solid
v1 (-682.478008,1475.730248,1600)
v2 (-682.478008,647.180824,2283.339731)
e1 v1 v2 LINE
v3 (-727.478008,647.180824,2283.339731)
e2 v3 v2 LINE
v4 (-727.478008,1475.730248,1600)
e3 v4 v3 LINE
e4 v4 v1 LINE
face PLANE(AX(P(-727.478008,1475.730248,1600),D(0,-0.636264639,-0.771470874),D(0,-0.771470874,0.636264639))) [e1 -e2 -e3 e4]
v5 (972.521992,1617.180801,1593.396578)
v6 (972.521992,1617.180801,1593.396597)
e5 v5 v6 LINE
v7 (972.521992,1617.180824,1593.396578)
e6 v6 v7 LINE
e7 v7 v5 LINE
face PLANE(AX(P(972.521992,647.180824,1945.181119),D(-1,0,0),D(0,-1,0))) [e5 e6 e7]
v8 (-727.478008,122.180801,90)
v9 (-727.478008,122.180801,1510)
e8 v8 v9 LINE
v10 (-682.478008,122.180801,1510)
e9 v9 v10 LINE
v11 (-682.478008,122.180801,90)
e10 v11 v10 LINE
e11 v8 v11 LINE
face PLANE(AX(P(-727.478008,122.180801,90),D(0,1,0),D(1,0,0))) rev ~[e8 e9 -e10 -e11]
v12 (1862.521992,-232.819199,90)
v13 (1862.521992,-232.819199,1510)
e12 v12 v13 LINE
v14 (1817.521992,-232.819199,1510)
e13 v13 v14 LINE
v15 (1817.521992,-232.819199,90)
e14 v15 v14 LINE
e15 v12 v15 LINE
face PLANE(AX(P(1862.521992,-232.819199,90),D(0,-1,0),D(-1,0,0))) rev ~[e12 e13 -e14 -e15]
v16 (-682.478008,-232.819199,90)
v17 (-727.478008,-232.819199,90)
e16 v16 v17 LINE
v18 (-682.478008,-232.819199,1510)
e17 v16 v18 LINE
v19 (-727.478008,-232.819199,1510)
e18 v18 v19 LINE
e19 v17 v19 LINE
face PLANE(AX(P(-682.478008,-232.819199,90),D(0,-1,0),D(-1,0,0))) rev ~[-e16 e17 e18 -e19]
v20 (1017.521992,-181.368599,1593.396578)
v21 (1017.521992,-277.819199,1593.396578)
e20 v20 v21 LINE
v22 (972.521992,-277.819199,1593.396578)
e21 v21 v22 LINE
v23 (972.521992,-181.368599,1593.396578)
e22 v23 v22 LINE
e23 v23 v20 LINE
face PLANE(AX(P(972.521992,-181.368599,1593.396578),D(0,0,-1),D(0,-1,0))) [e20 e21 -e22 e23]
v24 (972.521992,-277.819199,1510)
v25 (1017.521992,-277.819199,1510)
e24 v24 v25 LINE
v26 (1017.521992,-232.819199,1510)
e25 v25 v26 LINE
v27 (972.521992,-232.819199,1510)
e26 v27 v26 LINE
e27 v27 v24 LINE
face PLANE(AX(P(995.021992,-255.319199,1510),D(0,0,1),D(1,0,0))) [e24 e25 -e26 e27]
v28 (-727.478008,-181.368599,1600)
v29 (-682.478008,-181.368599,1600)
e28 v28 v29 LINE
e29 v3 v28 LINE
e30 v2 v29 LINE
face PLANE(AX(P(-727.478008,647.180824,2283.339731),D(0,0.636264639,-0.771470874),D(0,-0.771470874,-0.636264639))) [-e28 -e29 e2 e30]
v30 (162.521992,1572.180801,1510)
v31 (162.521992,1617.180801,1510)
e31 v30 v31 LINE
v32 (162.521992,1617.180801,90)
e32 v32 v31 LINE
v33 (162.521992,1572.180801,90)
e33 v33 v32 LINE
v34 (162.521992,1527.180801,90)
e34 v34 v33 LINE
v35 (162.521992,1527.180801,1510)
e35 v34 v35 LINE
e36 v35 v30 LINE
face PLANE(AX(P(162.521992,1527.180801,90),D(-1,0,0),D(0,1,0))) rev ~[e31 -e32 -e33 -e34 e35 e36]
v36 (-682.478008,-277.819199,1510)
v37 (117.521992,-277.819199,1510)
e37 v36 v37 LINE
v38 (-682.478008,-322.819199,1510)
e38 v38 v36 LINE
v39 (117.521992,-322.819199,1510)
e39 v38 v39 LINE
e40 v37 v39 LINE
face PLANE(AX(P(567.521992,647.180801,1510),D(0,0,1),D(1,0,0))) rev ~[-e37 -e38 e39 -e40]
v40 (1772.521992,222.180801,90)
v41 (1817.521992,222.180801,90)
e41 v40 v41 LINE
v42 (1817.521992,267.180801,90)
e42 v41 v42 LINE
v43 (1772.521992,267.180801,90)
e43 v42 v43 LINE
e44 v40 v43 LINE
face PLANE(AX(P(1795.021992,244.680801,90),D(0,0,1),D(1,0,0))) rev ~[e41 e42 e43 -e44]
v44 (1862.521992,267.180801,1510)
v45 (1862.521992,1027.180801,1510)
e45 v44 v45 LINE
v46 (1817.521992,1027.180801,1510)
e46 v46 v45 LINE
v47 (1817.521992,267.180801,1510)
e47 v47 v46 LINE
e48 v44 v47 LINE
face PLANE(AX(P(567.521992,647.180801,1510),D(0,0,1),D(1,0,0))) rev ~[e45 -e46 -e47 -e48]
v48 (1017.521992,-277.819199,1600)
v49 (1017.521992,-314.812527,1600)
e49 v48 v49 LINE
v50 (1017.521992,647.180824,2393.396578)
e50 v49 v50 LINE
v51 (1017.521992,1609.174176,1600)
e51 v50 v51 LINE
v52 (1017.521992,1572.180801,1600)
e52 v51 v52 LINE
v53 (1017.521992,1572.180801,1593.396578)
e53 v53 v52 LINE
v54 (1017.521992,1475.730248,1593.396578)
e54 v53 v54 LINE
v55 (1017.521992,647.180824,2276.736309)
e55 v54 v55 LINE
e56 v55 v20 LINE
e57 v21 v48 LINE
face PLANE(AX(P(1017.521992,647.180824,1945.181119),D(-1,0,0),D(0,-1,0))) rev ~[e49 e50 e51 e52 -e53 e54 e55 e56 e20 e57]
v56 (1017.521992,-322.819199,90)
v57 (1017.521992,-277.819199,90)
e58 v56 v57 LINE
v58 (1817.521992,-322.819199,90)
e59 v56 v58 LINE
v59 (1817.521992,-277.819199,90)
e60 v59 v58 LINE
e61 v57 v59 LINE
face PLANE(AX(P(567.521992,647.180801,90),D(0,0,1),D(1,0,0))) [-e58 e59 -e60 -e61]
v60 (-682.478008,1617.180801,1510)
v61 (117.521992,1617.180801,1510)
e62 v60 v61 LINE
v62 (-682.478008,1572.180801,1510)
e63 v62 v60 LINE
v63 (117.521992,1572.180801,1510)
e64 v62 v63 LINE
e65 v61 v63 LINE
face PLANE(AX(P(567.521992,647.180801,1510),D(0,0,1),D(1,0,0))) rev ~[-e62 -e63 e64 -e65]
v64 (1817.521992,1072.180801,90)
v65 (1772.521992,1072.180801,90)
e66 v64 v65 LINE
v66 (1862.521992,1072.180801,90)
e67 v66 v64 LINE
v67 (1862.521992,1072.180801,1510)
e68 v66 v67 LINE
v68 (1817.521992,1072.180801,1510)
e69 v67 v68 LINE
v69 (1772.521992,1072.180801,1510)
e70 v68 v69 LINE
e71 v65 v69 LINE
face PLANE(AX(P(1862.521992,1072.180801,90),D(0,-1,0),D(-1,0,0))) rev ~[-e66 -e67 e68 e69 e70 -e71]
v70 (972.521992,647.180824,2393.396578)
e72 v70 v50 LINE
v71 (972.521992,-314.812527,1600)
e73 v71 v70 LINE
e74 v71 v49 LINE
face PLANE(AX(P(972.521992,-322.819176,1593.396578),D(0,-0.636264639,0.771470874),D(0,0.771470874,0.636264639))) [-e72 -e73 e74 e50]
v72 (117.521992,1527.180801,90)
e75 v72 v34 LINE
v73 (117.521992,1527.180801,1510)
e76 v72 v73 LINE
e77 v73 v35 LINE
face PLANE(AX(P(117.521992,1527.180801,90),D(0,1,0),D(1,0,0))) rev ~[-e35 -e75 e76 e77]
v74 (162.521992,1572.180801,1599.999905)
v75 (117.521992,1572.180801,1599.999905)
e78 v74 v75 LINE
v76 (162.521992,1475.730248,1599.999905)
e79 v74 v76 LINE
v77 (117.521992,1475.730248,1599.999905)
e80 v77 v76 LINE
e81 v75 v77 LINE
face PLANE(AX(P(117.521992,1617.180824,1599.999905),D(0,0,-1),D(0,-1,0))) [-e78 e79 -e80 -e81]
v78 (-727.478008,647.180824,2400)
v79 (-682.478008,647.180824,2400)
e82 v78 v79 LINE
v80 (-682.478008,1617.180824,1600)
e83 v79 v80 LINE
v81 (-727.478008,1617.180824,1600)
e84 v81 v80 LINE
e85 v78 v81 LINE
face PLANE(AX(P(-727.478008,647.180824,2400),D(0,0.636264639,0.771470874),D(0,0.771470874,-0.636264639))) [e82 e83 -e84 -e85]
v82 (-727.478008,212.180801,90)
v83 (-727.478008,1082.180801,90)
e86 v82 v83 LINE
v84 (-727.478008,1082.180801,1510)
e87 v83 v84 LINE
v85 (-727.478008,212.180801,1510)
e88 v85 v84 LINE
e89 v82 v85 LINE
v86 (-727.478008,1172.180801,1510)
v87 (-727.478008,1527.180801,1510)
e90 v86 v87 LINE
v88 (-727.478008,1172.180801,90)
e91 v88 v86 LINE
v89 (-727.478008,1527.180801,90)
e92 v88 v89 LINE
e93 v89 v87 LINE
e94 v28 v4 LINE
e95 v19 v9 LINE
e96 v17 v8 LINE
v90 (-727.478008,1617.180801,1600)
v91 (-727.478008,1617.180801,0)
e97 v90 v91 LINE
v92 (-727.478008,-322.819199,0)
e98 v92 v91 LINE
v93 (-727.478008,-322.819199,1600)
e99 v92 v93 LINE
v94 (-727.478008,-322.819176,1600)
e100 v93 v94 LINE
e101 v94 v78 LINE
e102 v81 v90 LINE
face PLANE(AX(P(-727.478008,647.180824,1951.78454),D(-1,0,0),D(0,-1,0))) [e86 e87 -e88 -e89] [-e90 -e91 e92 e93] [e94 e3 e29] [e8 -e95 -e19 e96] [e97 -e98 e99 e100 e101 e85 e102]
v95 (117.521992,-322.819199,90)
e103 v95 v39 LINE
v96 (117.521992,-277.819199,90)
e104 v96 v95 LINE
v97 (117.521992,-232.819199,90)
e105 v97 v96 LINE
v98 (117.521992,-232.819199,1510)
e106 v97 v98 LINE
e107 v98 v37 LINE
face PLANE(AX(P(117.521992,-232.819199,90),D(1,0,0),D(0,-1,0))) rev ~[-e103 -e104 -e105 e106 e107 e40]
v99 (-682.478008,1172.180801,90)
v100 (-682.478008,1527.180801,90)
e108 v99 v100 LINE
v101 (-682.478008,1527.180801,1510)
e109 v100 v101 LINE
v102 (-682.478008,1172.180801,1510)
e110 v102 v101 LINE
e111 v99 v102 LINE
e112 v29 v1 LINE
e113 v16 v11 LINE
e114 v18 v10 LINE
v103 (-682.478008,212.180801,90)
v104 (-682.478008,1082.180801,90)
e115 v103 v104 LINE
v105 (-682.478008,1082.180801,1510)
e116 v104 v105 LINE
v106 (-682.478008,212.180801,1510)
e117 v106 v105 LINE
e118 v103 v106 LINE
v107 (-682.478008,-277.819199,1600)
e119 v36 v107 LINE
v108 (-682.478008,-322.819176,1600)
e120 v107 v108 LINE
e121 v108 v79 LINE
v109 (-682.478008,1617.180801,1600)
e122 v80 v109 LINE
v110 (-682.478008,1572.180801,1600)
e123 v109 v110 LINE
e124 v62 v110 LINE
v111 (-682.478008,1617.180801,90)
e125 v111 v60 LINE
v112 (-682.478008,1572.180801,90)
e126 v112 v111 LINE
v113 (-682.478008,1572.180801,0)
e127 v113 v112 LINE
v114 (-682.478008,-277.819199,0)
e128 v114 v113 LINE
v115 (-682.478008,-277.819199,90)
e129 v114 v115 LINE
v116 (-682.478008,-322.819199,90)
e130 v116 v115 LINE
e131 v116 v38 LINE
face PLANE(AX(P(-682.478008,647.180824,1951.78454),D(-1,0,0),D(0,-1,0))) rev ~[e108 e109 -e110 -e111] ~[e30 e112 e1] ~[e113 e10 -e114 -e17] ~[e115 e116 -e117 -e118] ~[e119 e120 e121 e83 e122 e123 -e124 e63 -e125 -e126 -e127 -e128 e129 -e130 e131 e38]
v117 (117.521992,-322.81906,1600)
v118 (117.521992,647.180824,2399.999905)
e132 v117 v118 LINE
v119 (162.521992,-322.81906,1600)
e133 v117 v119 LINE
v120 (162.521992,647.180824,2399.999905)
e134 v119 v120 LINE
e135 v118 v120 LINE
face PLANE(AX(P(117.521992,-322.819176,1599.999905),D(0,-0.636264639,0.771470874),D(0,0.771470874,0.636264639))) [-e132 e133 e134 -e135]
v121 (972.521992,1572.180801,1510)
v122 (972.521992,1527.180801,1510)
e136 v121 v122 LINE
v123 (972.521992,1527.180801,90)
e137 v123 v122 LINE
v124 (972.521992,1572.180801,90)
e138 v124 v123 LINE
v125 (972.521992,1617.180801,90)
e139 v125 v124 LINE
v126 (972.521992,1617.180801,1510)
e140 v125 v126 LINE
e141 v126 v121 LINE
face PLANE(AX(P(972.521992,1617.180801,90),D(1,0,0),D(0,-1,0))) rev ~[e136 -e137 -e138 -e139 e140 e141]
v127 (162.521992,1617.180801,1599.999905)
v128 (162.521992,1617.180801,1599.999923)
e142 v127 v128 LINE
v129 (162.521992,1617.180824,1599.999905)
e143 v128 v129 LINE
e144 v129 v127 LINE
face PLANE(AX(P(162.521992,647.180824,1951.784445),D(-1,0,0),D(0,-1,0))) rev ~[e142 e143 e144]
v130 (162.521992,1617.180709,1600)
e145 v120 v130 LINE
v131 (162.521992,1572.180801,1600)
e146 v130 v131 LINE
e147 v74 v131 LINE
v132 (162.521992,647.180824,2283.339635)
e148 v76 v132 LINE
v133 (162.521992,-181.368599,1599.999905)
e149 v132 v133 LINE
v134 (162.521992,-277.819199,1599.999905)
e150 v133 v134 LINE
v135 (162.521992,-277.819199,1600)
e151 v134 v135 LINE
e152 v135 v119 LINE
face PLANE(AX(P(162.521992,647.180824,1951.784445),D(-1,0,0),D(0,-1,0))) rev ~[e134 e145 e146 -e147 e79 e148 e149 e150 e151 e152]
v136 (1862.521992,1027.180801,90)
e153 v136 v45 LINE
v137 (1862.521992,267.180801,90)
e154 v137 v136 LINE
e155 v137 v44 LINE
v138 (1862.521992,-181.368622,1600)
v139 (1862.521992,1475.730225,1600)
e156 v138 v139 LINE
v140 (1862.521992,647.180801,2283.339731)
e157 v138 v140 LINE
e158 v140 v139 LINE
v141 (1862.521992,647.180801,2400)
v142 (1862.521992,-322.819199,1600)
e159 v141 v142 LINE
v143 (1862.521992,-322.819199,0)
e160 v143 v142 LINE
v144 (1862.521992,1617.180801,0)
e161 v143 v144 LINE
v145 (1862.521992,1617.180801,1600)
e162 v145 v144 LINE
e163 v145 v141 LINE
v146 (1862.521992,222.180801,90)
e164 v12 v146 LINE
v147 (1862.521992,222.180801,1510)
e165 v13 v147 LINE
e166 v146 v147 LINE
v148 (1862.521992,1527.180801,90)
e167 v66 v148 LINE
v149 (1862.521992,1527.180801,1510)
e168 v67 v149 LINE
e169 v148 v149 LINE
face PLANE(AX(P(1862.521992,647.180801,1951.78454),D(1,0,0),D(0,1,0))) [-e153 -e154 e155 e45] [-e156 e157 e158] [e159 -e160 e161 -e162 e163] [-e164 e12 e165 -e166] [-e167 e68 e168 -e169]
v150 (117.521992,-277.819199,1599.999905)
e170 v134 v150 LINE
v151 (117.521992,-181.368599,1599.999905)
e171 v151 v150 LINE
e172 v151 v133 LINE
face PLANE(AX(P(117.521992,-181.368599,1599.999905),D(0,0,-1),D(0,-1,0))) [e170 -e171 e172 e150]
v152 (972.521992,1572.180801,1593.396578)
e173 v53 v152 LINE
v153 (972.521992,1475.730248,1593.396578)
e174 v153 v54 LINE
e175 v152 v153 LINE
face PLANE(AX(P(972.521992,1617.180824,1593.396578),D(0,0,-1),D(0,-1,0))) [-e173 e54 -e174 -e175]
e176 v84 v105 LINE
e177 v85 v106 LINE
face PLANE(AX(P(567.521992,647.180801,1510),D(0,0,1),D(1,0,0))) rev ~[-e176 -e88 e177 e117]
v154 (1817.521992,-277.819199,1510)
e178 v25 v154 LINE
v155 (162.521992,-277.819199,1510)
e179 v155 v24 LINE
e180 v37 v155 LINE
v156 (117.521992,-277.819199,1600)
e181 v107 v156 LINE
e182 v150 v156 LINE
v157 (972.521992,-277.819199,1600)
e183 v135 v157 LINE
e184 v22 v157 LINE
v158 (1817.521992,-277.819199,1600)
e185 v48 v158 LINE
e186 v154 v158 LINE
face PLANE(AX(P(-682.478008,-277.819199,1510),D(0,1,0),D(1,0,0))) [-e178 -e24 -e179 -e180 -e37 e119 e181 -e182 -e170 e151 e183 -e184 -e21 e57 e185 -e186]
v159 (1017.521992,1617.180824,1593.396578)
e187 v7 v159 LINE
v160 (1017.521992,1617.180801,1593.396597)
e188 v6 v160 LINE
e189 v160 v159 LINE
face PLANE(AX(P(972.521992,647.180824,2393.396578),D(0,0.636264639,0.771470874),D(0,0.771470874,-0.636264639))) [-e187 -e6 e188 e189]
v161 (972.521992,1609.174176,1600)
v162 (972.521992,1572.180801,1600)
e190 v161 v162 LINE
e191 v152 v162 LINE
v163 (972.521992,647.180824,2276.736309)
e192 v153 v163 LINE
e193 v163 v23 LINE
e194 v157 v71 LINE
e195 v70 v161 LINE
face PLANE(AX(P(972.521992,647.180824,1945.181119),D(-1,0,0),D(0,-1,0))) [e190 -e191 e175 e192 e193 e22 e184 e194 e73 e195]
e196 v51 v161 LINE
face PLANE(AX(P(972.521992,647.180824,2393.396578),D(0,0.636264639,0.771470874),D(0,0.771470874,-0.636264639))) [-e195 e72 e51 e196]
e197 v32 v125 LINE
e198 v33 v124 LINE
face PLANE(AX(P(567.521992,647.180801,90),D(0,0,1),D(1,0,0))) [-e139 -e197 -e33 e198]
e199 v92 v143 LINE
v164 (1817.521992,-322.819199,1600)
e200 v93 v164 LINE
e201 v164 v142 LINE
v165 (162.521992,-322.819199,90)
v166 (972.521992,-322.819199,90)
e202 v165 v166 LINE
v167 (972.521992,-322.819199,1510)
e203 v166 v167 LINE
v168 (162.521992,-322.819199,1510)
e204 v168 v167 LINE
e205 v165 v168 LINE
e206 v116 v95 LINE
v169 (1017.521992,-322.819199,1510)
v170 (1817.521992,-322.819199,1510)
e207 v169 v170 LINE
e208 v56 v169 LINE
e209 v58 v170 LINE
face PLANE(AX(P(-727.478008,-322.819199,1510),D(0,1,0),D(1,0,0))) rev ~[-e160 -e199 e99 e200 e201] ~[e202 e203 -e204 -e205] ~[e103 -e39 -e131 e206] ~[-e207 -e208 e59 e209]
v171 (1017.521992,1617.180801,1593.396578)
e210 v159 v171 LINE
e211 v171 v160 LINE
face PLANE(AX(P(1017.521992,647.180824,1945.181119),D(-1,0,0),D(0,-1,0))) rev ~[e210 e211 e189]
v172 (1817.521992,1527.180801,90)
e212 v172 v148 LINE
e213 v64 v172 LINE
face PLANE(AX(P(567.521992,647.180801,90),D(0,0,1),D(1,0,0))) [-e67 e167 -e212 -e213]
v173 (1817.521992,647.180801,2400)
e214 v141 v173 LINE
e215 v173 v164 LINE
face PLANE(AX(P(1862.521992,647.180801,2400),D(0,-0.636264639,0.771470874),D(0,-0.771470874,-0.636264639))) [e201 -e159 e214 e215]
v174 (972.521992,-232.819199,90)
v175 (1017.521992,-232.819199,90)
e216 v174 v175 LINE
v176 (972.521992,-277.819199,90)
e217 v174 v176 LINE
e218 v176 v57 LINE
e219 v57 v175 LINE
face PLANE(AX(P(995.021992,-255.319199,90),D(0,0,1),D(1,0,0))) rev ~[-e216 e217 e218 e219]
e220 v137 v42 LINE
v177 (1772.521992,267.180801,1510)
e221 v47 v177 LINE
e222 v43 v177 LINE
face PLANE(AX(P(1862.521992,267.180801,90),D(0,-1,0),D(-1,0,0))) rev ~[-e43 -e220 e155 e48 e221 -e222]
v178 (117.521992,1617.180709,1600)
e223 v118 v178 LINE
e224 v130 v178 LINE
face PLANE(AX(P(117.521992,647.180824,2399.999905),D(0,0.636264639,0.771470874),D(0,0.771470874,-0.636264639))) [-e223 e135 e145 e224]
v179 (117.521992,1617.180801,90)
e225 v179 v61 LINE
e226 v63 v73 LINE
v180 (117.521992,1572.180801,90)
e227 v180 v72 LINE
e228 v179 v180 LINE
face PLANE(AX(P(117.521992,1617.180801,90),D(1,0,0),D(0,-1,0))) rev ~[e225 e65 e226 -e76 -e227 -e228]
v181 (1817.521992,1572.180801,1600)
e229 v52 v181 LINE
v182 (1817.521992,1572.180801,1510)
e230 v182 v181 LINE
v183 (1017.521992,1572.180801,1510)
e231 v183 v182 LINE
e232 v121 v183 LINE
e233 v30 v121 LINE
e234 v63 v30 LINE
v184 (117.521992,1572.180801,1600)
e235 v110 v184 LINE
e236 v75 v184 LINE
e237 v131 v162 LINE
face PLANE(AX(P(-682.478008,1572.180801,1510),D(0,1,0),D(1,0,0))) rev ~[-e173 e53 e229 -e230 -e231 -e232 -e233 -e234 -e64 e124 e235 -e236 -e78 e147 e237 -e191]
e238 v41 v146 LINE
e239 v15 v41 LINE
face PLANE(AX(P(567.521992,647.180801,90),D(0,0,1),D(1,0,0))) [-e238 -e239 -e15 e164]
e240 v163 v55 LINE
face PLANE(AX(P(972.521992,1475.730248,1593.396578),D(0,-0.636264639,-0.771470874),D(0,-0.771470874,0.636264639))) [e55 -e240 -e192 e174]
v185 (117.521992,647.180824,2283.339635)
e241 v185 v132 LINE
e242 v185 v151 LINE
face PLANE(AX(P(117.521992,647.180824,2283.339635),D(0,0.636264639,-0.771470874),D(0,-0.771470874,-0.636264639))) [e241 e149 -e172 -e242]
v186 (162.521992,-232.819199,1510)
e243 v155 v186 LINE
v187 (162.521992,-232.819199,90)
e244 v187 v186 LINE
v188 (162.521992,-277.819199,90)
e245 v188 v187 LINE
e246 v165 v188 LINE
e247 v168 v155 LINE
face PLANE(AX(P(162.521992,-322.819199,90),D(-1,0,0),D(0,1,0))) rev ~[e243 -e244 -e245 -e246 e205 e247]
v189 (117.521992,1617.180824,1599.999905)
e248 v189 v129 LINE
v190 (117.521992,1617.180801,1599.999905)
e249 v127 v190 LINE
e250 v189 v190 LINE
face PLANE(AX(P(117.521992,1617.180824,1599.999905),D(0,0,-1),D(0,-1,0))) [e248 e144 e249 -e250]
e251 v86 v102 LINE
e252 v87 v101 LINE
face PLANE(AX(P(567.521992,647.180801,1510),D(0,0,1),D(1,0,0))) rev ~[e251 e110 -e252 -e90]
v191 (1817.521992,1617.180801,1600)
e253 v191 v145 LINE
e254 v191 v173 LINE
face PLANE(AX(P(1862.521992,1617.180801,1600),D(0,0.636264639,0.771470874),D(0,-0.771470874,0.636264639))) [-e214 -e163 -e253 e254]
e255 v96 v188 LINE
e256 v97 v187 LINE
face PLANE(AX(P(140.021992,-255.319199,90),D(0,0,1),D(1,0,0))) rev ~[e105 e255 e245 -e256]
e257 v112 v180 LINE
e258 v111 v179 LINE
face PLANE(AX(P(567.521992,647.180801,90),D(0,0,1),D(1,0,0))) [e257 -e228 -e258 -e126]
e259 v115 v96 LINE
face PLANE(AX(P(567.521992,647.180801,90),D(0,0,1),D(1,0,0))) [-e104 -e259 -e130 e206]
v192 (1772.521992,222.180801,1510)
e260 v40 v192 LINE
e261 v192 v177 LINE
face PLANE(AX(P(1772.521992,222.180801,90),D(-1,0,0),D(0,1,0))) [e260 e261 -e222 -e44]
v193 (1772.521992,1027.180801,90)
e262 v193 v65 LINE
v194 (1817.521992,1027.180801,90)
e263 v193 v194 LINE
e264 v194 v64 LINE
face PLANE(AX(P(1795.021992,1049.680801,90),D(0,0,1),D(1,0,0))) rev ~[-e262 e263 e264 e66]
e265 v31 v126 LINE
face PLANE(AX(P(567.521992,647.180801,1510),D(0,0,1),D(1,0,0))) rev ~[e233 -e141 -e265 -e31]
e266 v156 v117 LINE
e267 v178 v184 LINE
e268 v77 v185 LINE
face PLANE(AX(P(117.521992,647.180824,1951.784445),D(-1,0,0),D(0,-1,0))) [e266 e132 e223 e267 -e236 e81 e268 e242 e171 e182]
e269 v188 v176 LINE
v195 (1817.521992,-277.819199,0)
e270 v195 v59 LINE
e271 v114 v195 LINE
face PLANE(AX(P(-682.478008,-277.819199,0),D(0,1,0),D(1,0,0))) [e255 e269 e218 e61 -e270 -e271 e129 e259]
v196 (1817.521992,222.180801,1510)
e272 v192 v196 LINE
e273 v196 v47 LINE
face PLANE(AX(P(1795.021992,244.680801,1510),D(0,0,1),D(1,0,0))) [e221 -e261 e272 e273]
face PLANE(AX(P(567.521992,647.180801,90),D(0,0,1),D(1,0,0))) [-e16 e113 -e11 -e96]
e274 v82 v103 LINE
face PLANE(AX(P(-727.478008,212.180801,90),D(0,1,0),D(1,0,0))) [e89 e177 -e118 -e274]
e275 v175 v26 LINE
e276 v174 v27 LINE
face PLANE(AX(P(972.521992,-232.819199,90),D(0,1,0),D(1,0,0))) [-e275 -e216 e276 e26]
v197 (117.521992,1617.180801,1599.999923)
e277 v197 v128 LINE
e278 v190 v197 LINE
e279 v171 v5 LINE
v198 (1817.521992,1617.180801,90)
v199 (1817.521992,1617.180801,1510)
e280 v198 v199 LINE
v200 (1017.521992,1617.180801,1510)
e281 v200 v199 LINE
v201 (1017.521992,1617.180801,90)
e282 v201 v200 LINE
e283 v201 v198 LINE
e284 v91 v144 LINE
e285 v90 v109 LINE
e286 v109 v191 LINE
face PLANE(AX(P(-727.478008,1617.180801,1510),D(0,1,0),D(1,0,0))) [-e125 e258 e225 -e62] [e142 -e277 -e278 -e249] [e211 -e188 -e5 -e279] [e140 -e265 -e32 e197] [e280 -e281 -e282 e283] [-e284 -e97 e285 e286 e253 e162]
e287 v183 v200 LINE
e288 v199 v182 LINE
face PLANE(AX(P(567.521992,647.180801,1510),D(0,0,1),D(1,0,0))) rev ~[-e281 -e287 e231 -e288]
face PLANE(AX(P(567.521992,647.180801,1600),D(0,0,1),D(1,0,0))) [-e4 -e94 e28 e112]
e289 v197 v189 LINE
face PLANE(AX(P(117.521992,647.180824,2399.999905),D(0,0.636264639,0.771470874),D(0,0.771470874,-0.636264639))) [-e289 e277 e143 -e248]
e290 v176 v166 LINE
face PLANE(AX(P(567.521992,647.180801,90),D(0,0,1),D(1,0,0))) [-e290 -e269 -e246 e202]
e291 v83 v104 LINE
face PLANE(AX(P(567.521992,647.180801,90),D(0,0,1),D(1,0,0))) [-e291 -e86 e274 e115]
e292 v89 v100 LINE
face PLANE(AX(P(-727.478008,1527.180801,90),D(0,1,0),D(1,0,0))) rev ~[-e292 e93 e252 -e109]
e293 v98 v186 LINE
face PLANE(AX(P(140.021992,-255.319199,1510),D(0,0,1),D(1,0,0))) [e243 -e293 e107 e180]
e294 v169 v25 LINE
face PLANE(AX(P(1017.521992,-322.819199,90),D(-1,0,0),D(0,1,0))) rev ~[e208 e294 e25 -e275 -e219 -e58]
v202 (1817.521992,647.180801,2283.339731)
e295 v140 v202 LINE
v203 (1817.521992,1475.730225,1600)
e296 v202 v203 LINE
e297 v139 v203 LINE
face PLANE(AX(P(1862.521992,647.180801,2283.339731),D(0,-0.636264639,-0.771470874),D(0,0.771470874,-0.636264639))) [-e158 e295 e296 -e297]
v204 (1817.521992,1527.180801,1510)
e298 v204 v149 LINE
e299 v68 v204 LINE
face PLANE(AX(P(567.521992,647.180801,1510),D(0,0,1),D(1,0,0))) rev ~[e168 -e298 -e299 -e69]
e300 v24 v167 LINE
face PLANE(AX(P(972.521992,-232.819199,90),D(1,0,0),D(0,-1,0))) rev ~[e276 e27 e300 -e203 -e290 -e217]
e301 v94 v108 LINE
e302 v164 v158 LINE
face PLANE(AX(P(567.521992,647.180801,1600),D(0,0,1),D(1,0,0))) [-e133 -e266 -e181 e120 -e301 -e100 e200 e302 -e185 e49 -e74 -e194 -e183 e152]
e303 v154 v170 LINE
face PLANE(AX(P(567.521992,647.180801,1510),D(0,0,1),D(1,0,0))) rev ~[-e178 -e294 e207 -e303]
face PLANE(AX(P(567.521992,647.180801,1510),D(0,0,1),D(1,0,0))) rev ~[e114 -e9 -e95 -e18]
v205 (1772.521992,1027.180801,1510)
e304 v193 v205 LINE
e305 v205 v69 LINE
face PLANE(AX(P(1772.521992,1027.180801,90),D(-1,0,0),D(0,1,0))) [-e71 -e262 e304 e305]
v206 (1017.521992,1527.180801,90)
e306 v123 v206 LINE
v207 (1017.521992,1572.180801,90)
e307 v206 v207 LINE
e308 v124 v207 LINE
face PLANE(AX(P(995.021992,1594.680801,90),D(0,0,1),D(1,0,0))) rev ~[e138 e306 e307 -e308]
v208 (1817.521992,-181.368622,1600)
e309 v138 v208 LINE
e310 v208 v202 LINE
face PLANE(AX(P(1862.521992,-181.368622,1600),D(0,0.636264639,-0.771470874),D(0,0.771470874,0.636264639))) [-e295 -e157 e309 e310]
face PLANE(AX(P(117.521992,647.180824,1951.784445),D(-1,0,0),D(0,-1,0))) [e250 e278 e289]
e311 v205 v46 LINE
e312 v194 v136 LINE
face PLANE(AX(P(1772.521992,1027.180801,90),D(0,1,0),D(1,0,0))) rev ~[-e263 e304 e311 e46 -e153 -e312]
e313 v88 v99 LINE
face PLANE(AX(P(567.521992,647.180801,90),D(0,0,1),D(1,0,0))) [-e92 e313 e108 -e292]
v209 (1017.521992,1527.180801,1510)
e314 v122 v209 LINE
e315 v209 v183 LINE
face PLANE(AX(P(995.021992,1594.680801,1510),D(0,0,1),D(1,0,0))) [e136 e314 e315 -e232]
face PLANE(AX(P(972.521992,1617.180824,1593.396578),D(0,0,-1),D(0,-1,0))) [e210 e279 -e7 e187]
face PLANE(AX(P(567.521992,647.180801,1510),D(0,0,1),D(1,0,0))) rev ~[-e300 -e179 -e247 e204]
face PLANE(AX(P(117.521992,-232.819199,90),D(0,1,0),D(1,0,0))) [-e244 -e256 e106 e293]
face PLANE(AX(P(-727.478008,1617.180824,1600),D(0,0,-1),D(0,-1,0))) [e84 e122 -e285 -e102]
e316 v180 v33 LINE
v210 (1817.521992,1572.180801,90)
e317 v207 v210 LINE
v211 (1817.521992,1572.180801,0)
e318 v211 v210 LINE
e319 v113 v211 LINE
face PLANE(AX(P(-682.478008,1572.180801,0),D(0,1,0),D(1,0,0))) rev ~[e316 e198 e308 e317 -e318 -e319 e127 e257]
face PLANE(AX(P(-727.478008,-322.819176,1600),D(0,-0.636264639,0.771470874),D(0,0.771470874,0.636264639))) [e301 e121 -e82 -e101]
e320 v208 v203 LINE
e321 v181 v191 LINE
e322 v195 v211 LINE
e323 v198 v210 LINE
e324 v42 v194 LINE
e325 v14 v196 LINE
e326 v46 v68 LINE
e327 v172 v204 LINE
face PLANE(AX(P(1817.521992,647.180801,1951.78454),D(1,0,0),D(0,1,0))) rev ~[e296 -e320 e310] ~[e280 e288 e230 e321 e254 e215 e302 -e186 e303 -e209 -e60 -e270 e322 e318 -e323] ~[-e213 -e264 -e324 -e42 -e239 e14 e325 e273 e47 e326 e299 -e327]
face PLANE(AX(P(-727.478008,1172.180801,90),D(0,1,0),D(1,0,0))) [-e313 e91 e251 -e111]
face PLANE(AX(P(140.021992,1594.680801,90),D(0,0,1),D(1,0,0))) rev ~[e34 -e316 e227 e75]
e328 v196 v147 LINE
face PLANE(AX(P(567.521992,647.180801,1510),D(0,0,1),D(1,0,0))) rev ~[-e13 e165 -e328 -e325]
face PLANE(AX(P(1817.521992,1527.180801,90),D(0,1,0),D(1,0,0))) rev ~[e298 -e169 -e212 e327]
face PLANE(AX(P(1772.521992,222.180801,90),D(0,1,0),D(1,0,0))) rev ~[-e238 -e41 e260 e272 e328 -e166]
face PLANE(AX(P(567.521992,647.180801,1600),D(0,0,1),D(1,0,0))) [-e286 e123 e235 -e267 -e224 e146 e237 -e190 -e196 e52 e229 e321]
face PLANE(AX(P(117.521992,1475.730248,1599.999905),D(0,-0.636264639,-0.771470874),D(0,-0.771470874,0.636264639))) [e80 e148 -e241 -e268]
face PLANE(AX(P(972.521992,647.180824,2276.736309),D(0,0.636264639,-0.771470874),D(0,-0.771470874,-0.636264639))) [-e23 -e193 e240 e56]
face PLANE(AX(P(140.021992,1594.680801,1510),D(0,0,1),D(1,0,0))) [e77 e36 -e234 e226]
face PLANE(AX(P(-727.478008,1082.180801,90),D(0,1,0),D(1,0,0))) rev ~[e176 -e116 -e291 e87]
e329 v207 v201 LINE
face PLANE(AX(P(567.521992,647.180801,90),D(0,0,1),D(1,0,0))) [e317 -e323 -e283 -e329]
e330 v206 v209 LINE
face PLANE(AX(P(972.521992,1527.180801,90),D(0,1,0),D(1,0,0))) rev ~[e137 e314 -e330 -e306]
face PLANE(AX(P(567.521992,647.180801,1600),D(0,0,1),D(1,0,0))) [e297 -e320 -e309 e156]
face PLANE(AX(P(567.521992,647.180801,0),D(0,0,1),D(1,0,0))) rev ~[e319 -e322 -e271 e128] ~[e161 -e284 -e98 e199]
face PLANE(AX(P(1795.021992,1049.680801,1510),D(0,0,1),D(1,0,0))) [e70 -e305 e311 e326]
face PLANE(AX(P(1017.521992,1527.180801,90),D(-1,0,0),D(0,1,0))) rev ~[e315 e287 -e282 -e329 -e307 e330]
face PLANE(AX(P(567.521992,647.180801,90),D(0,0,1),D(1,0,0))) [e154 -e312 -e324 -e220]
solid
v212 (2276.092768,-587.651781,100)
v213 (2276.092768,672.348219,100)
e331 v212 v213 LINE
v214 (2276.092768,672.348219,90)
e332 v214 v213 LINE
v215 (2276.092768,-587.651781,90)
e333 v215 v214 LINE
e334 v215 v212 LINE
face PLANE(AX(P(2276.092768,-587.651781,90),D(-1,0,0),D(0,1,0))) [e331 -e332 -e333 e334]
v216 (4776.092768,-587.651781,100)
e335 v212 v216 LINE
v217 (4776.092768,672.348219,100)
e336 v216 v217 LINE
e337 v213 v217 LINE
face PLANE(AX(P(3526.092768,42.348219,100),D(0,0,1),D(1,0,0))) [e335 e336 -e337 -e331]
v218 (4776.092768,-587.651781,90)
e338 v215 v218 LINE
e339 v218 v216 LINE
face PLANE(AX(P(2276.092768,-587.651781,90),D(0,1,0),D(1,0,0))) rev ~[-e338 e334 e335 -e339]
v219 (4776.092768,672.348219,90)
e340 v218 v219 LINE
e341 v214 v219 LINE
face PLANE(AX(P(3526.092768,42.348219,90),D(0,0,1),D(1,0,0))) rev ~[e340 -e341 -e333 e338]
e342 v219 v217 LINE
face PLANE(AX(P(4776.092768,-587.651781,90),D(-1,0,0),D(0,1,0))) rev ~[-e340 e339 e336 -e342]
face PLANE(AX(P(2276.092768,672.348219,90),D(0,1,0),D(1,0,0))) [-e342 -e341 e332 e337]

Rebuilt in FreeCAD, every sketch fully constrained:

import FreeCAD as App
import Part
import Sketcher
from FreeCAD import Vector

doc = App.newDocument("Part")
body = doc.addObject("PartDesign::Body", "Body")

# Sketch on XY plane
sketch1 = body.newObject("Sketcher::SketchObject", "Sketch")
sketch1.AttachmentSupport = (doc.getObject("XY_Plane"), [""])
sketch1.MapMode = "FlatFace"
sketch1.addGeometry([
    Part.LineSegment(Vector(-727, 1617, 0), Vector(-727, -323, 0)),  # 0
    Part.LineSegment(Vector(-727, -323, 0), Vector(1863, -323, 0)),  # 1
    Part.LineSegment(Vector(1863, -323, 0), Vector(1863, 1617, 0)),  # 2
    Part.LineSegment(Vector(1863, 1617, 0), Vector(-727, 1617, 0)),  # 3
    Part.LineSegment(Vector(1818, -278, 0), Vector(-682, -278, 0)),  # 4
    Part.LineSegment(Vector(-682, -278, 0), Vector(-682, 1572, 0)),  # 5
    Part.LineSegment(Vector(-682, 1572, 0), Vector(1818, 1572, 0)),  # 6
    Part.LineSegment(Vector(1818, 1572, 0), Vector(1818, -278, 0)),  # 7
], False)
sketch1.addConstraint([
    Sketcher.Constraint("Coincident", 0, 2, 1, 1),
    Sketcher.Constraint("Coincident", 1, 2, 2, 1),
    Sketcher.Constraint("Coincident", 2, 2, 3, 1),
    Sketcher.Constraint("Coincident", 3, 2, 0, 1),
    Sketcher.Constraint("Coincident", 4, 2, 5, 1),
    Sketcher.Constraint("Coincident", 5, 2, 6, 1),
    Sketcher.Constraint("Coincident", 6, 2, 7, 1),
    Sketcher.Constraint("Coincident", 7, 2, 4, 1),
    Sketcher.Constraint("Vertical", 0),
    Sketcher.Constraint("Horizontal", 1),
    Sketcher.Constraint("Vertical", 2),
    Sketcher.Constraint("Horizontal", 3),
    Sketcher.Constraint("Horizontal", 4),
    Sketcher.Constraint("Vertical", 5),
    Sketcher.Constraint("Horizontal", 6),
    Sketcher.Constraint("Vertical", 7),
    Sketcher.Constraint("DistanceX", 1, 1, 1, 2, 2590.0),
    Sketcher.Constraint("DistanceX", 4, 2, 4, 1, 2500.0),
    Sketcher.Constraint("DistanceY", 0, 2, 0, 1, 1940.0),
    Sketcher.Constraint("DistanceY", 5, 1, 5, 2, 1850.0),
    Sketcher.Constraint("DistanceX", 0, 2, 4, 2, 45.0),
    Sketcher.Constraint("DistanceY", 0, 2, 4, 2, 45.0),
    Sketcher.Constraint("DistanceY", 0, 2, -1, 1, 322.819199),
    Sketcher.Constraint("DistanceX", 0, 2, -1, 1, 727.478008),
])
pad1 = body.newObject("PartDesign::Pad", "Pad")
pad1.Profile = sketch1
pad1.Length = 90

# Sketch on XY plane
sketch2 = body.newObject("Sketcher::SketchObject", "Sketch001")
sketch2.AttachmentSupport = (doc.getObject("XY_Plane"), [""])
sketch2.MapMode = "FlatFace"
sketch2.AttachmentOffset = App.Placement(Vector(0, 0, 90), App.Rotation())
sketch2.addGeometry([
    Part.LineSegment(Vector(-727, 1172, 0), Vector(-727, 1082, 0)),  # 0
    Part.LineSegment(Vector(-727, 1082, 0), Vector(-682, 1082, 0)),  # 1
    Part.LineSegment(Vector(-682, 1082, 0), Vector(-682, 1172, 0)),  # 2
    Part.LineSegment(Vector(-682, 1172, 0), Vector(-727, 1172, 0)),  # 3
    Part.LineSegment(Vector(-727, 212, 0), Vector(-727, 122, 0)),  # 4
    Part.LineSegment(Vector(-727, 122, 0), Vector(-682, 122, 0)),  # 5
    Part.LineSegment(Vector(-682, 122, 0), Vector(-682, 212, 0)),  # 6
    Part.LineSegment(Vector(-682, 212, 0), Vector(-727, 212, 0)),  # 7
    Part.LineSegment(Vector(-727, -233, 0), Vector(-727, -323, 0)),  # 8
    Part.LineSegment(Vector(-727, -323, 0), Vector(-682, -323, 0)),  # 9
    Part.LineSegment(Vector(-682, -323, 0), Vector(-682, -233, 0)),  # 10
    Part.LineSegment(Vector(-682, -233, 0), Vector(-727, -233, 0)),  # 11
    Part.LineSegment(Vector(118, -233, 0), Vector(118, -323, 0)),  # 12
    Part.LineSegment(Vector(118, -323, 0), Vector(163, -323, 0)),  # 13
    Part.LineSegment(Vector(163, -323, 0), Vector(163, -233, 0)),  # 14
    Part.LineSegment(Vector(163, -233, 0), Vector(118, -233, 0)),  # 15
    Part.LineSegment(Vector(973, -233, 0), Vector(973, -323, 0)),  # 16
    Part.LineSegment(Vector(973, -323, 0), Vector(1018, -323, 0)),  # 17
    Part.LineSegment(Vector(1018, -323, 0), Vector(1018, -233, 0)),  # 18
    Part.LineSegment(Vector(1018, -233, 0), Vector(973, -233, 0)),  # 19
    Part.LineSegment(Vector(1818, -323, 0), Vector(1863, -323, 0)),  # 20
    Part.LineSegment(Vector(1863, -323, 0), Vector(1863, -233, 0)),  # 21
    Part.LineSegment(Vector(1863, -233, 0), Vector(1818, -233, 0)),  # 22
    Part.LineSegment(Vector(1818, -233, 0), Vector(1818, -323, 0)),  # 23
    Part.LineSegment(Vector(1773, 267, 0), Vector(1773, 222, 0)),  # 24
    Part.LineSegment(Vector(1773, 222, 0), Vector(1863, 222, 0)),  # 25
    Part.LineSegment(Vector(1863, 222, 0), Vector(1863, 267, 0)),  # 26
    Part.LineSegment(Vector(1863, 267, 0), Vector(1773, 267, 0)),  # 27
    Part.LineSegment(Vector(1773, 1072, 0), Vector(1773, 1027, 0)),  # 28
    Part.LineSegment(Vector(1773, 1027, 0), Vector(1863, 1027, 0)),  # 29
    Part.LineSegment(Vector(1863, 1027, 0), Vector(1863, 1072, 0)),  # 30
    Part.LineSegment(Vector(1863, 1072, 0), Vector(1773, 1072, 0)),  # 31
    Part.LineSegment(Vector(1818, 1527, 0), Vector(1863, 1527, 0)),  # 32
    Part.LineSegment(Vector(1863, 1527, 0), Vector(1863, 1617, 0)),  # 33
    Part.LineSegment(Vector(1863, 1617, 0), Vector(1818, 1617, 0)),  # 34
    Part.LineSegment(Vector(1818, 1617, 0), Vector(1818, 1527, 0)),  # 35
    Part.LineSegment(Vector(973, 1617, 0), Vector(973, 1527, 0)),  # 36
    Part.LineSegment(Vector(973, 1527, 0), Vector(1018, 1527, 0)),  # 37
    Part.LineSegment(Vector(1018, 1527, 0), Vector(1018, 1617, 0)),  # 38
    Part.LineSegment(Vector(1018, 1617, 0), Vector(973, 1617, 0)),  # 39
    Part.LineSegment(Vector(118, 1617, 0), Vector(118, 1527, 0)),  # 40
    Part.LineSegment(Vector(118, 1527, 0), Vector(163, 1527, 0)),  # 41
    Part.LineSegment(Vector(163, 1527, 0), Vector(163, 1617, 0)),  # 42
    Part.LineSegment(Vector(163, 1617, 0), Vector(118, 1617, 0)),  # 43
    Part.LineSegment(Vector(-727, 1617, 0), Vector(-727, 1527, 0)),  # 44
    Part.LineSegment(Vector(-727, 1527, 0), Vector(-682, 1527, 0)),  # 45
    Part.LineSegment(Vector(-682, 1527, 0), Vector(-682, 1617, 0)),  # 46
    Part.LineSegment(Vector(-682, 1617, 0), Vector(-727, 1617, 0)),  # 47
], False)
sketch2.addConstraint([
    Sketcher.Constraint("Coincident", 0, 2, 1, 1),
    Sketcher.Constraint("Coincident", 1, 2, 2, 1),
    Sketcher.Constraint("Coincident", 2, 2, 3, 1),
    Sketcher.Constraint("Coincident", 3, 2, 0, 1),
    Sketcher.Constraint("Coincident", 4, 2, 5, 1),
    Sketcher.Constraint("Coincident", 5, 2, 6, 1),
    Sketcher.Constraint("Coincident", 6, 2, 7, 1),
    Sketcher.Constraint("Coincident", 7, 2, 4, 1),
    Sketcher.Constraint("Coincident", 8, 2, 9, 1),
    Sketcher.Constraint("Coincident", 9, 2, 10, 1),
    Sketcher.Constraint("Coincident", 10, 2, 11, 1),
    Sketcher.Constraint("Coincident", 11, 2, 8, 1),
    Sketcher.Constraint("Coincident", 12, 2, 13, 1),
    Sketcher.Constraint("Coincident", 13, 2, 14, 1),
    Sketcher.Constraint("Coincident", 14, 2, 15, 1),
    Sketcher.Constraint("Coincident", 15, 2, 12, 1),
    Sketcher.Constraint("Coincident", 16, 2, 17, 1),
    Sketcher.Constraint("Coincident", 17, 2, 18, 1),
    Sketcher.Constraint("Coincident", 18, 2, 19, 1),
    Sketcher.Constraint("Coincident", 19, 2, 16, 1),
    Sketcher.Constraint("Coincident", 20, 2, 21, 1),
    Sketcher.Constraint("Coincident", 21, 2, 22, 1),
    Sketcher.Constraint("Coincident", 22, 2, 23, 1),
    Sketcher.Constraint("Coincident", 23, 2, 20, 1),
    Sketcher.Constraint("Coincident", 24, 2, 25, 1),
    Sketcher.Constraint("Coincident", 25, 2, 26, 1),
    Sketcher.Constraint("Coincident", 26, 2, 27, 1),
    Sketcher.Constraint("Coincident", 27, 2, 24, 1),
    Sketcher.Constraint("Coincident", 28, 2, 29, 1),
    Sketcher.Constraint("Coincident", 29, 2, 30, 1),
    Sketcher.Constraint("Coincident", 30, 2, 31, 1),
    Sketcher.Constraint("Coincident", 31, 2, 28, 1),
    Sketcher.Constraint("Coincident", 32, 2, 33, 1),
    Sketcher.Constraint("Coincident", 33, 2, 34, 1),
    Sketcher.Constraint("Coincident", 34, 2, 35, 1),
    Sketcher.Constraint("Coincident", 35, 2, 32, 1),
    Sketcher.Constraint("Coincident", 36, 2, 37, 1),
    Sketcher.Constraint("Coincident", 37, 2, 38, 1),
    Sketcher.Constraint("Coincident", 38, 2, 39, 1),
    Sketcher.Constraint("Coincident", 39, 2, 36, 1),
    Sketcher.Constraint("Coincident", 40, 2, 41, 1),
    Sketcher.Constraint("Coincident", 41, 2, 42, 1),
    Sketcher.Constraint("Coincident", 42, 2, 43, 1),
    Sketcher.Constraint("Coincident", 43, 2, 40, 1),
    Sketcher.Constraint("Coincident", 44, 2, 45, 1),
    Sketcher.Constraint("Coincident", 45, 2, 46, 1),
    Sketcher.Constraint("Coincident", 46, 2, 47, 1),
    Sketcher.Constraint("Coincident", 47, 2, 44, 1),
    Sketcher.Constraint("Vertical", 0),
    Sketcher.Constraint("Horizontal", 1),
    Sketcher.Constraint("Vertical", 2),
    Sketcher.Constraint("Horizontal", 3),
    Sketcher.Constraint("Vertical", 4),
    Sketcher.Constraint("Horizontal", 5),
    Sketcher.Constraint("Vertical", 6),
    Sketcher.Constraint("Horizontal", 7),
    Sketcher.Constraint("Vertical", 8),
    Sketcher.Constraint("Horizontal", 9),
    Sketcher.Constraint("Vertical", 10),
    Sketcher.Constraint("Horizontal", 11),
    Sketcher.Constraint("Vertical", 12),
    Sketcher.Constraint("Horizontal", 13),
    Sketcher.Constraint("Vertical", 14),
    Sketcher.Constraint("Horizontal", 15),
    Sketcher.Constraint("Vertical", 16),
    Sketcher.Constraint("Horizontal", 17),
    Sketcher.Constraint("Vertical", 18),
    Sketcher.Constraint("Horizontal", 19),
    Sketcher.Constraint("Horizontal", 20),
    Sketcher.Constraint("Vertical", 21),
    Sketcher.Constraint("Horizontal", 22),
    Sketcher.Constraint("Vertical", 23),
    Sketcher.Constraint("Vertical", 24),
    Sketcher.Constraint("Horizontal", 25),
    Sketcher.Constraint("Vertical", 26),
    Sketcher.Constraint("Horizontal", 27),
    Sketcher.Constraint("Vertical", 28),
    Sketcher.Constraint("Horizontal", 29),
    Sketcher.Constraint("Vertical", 30),
    Sketcher.Constraint("Horizontal", 31),
    Sketcher.Constraint("Horizontal", 32),
    Sketcher.Constraint("Vertical", 33),
    Sketcher.Constraint("Horizontal", 34),
    Sketcher.Constraint("Vertical", 35),
    Sketcher.Constraint("Vertical", 36),
    Sketcher.Constraint("Horizontal", 37),
    Sketcher.Constraint("Vertical", 38),
    Sketcher.Constraint("Horizontal", 39),
    Sketcher.Constraint("Vertical", 40),
    Sketcher.Constraint("Horizontal", 41),
    Sketcher.Constraint("Vertical", 42),
    Sketcher.Constraint("Horizontal", 43),
    Sketcher.Constraint("Vertical", 44),
    Sketcher.Constraint("Horizontal", 45),
    Sketcher.Constraint("Vertical", 46),
    Sketcher.Constraint("Horizontal", 47),
    Sketcher.Constraint("Horizontal", 9, 2, 12, 2),
    Sketcher.Constraint("Horizontal", 11, 2, 14, 2),
    Sketcher.Constraint("Horizontal", 13, 2, 16, 2),
    Sketcher.Constraint("Horizontal", 15, 2, 18, 2),
    Sketcher.Constraint("Horizontal", 17, 2, 20, 2),
    Sketcher.Constraint("Horizontal", 19, 2, 21, 2),
    Sketcher.Constraint("Horizontal", 35, 2, 36, 2),
    Sketcher.Constraint("Horizontal", 34, 2, 38, 2),
    Sketcher.Constraint("Horizontal", 37, 2, 40, 2),
    Sketcher.Constraint("Horizontal", 39, 2, 42, 2),
    Sketcher.Constraint("Horizontal", 41, 2, 44, 2),
    Sketcher.Constraint("Horizontal", 43, 2, 46, 2),
    Sketcher.Constraint("Vertical", 3, 2, 4, 2),
    Sketcher.Constraint("Vertical", 2, 2, 5, 2),
    Sketcher.Constraint("Vertical", 7, 2, 8, 2),
    Sketcher.Constraint("Vertical", 6, 2, 9, 2),
    Sketcher.Constraint("Vertical", 21, 2, 25, 2),
    Sketcher.Constraint("Vertical", 27, 2, 28, 2),
    Sketcher.Constraint("Vertical", 26, 2, 29, 2),
    Sketcher.Constraint("Vertical", 30, 2, 32, 2),
    Sketcher.Constraint("Vertical", 23, 2, 34, 2),
    Sketcher.Constraint("Vertical", 19, 2, 36, 2),
    Sketcher.Constraint("Vertical", 18, 2, 37, 2),
    Sketcher.Constraint("Vertical", 15, 2, 40, 2),
    Sketcher.Constraint("Vertical", 14, 2, 41, 2),
    Sketcher.Constraint("Vertical", 11, 2, 44, 2),
    Sketcher.Constraint("Vertical", 10, 2, 45, 2),
    Sketcher.Constraint("Equal", 11, 13),
    Sketcher.Constraint("Equal", 15, 17),
    Sketcher.Constraint("Equal", 19, 20),
    Sketcher.Constraint("Equal", 31, 0),
    Sketcher.Constraint("Equal", 2, 4),
    Sketcher.Constraint("Equal", 6, 8),
    Sketcher.Constraint("Equal", 47, 24),
    Sketcher.Constraint("Equal", 26, 28),
    Sketcher.Constraint("Equal", 23, 33),
    Sketcher.Constraint("DistanceX", 1, 1, 1, 2, 45.0),
    Sketcher.Constraint("DistanceX", 25, 1, 25, 2, 90.0),
    Sketcher.Constraint("DistanceY", 4, 2, 0, 2, 960.0),
    Sketcher.Constraint("DistanceY", 8, 2, 4, 2, 445.0),
    Sketcher.Constraint("DistanceX", 9, 2, 12, 2, 800.0),
    Sketcher.Constraint("DistanceX", 13, 2, 16, 2, 810.0),
    Sketcher.Constraint("DistanceX", 17, 2, 20, 2, 845.0),
    Sketcher.Constraint("DistanceY", 22, 2, 24, 2, 455.0),
    Sketcher.Constraint("DistanceY", 27, 2, 28, 2, 760.0),
    Sketcher.Constraint("DistanceY", 30, 2, 32, 2, 455.0),
    Sketcher.Constraint("DistanceY", -1, 1, 0, 2, 1082.180801),
    Sketcher.Constraint("DistanceX", 0, 2, -1, 1, 727.478008),
])
pad2 = body.newObject("PartDesign::Pad", "Pad001")
pad2.Profile = sketch2
pad2.Length = 1420

# Sketch on XY plane
sketch3 = body.newObject("Sketcher::SketchObject", "Sketch002")
sketch3.AttachmentSupport = (doc.getObject("XY_Plane"), [""])
sketch3.MapMode = "FlatFace"
sketch3.AttachmentOffset = App.Placement(Vector(0, 0, 1510), App.Rotation())
sketch3.addGeometry([
    Part.LineSegment(Vector(-727, 1617, 0), Vector(-727, -323, 0)),  # 0
    Part.LineSegment(Vector(-727, -323, 0), Vector(1863, -323, 0)),  # 1
    Part.LineSegment(Vector(1863, -323, 0), Vector(1863, 1617, 0)),  # 2
    Part.LineSegment(Vector(1863, 1617, 0), Vector(-727, 1617, 0)),  # 3
    Part.LineSegment(Vector(1818, -278, 0), Vector(-682, -278, 0)),  # 4
    Part.LineSegment(Vector(-682, -278, 0), Vector(-682, 1572, 0)),  # 5
    Part.LineSegment(Vector(-682, 1572, 0), Vector(1818, 1572, 0)),  # 6
    Part.LineSegment(Vector(1818, 1572, 0), Vector(1818, -278, 0)),  # 7
], False)
sketch3.addConstraint([
    Sketcher.Constraint("Coincident", 0, 2, 1, 1),
    Sketcher.Constraint("Coincident", 1, 2, 2, 1),
    Sketcher.Constraint("Coincident", 2, 2, 3, 1),
    Sketcher.Constraint("Coincident", 3, 2, 0, 1),
    Sketcher.Constraint("Coincident", 4, 2, 5, 1),
    Sketcher.Constraint("Coincident", 5, 2, 6, 1),
    Sketcher.Constraint("Coincident", 6, 2, 7, 1),
    Sketcher.Constraint("Coincident", 7, 2, 4, 1),
    Sketcher.Constraint("Vertical", 0),
    Sketcher.Constraint("Horizontal", 1),
    Sketcher.Constraint("Vertical", 2),
    Sketcher.Constraint("Horizontal", 3),
    Sketcher.Constraint("Horizontal", 4),
    Sketcher.Constraint("Vertical", 5),
    Sketcher.Constraint("Horizontal", 6),
    Sketcher.Constraint("Vertical", 7),
    Sketcher.Constraint("DistanceX", 1, 1, 1, 2, 2590.0),
    Sketcher.Constraint("DistanceX", 4, 2, 4, 1, 2500.0),
    Sketcher.Constraint("DistanceY", 0, 2, 0, 1, 1940.0),
    Sketcher.Constraint("DistanceY", 5, 1, 5, 2, 1850.0),
    Sketcher.Constraint("DistanceX", 0, 2, 4, 2, 45.0),
    Sketcher.Constraint("DistanceY", 0, 2, 4, 2, 45.0),
    Sketcher.Constraint("DistanceY", 0, 2, -1, 1, 322.819199),
    Sketcher.Constraint("DistanceX", 0, 2, -1, 1, 727.478008),
])
pad3 = body.newObject("PartDesign::Pad", "Pad002")
pad3.Profile = sketch3
pad3.Length = 90

# Sketch on YZ plane
sketch4 = body.newObject("Sketcher::SketchObject", "Sketch003")
sketch4.AttachmentSupport = (doc.getObject("YZ_Plane"), [""])
sketch4.MapMode = "FlatFace"
sketch4.AttachmentOffset = App.Placement(Vector(0, 0, 1862.521992), App.Rotation())
sketch4.addGeometry([
    Part.LineSegment(Vector(647, 2400, 0), Vector(-323, 1600, 0)),  # 0
    Part.LineSegment(Vector(-323, 1600, 0), Vector(-181, 1600, 0)),  # 1
    Part.LineSegment(Vector(-181, 1600, 0), Vector(647, 2283, 0)),  # 2
    Part.LineSegment(Vector(647, 2283, 0), Vector(1476, 1600, 0)),  # 3
    Part.LineSegment(Vector(1476, 1600, 0), Vector(1617, 1600, 0)),  # 4
    Part.LineSegment(Vector(1617, 1600, 0), Vector(647, 2400, 0)),  # 5
], False)
sketch4.addConstraint([
    Sketcher.Constraint("Coincident", 0, 2, 1, 1),
    Sketcher.Constraint("Coincident", 1, 2, 2, 1),
    Sketcher.Constraint("Coincident", 2, 2, 3, 1),
    Sketcher.Constraint("Coincident", 3, 2, 4, 1),
    Sketcher.Constraint("Coincident", 4, 2, 5, 1),
    Sketcher.Constraint("Coincident", 5, 2, 0, 1),
    Sketcher.Constraint("Horizontal", 1),
    Sketcher.Constraint("Horizontal", 4),
    Sketcher.Constraint("Parallel", 0, 2),
    Sketcher.Constraint("Parallel", 3, 5),
    Sketcher.Constraint("Horizontal", 1, 2, 3, 2),
    Sketcher.Constraint("Vertical", 2, 2, 5, 2),
    Sketcher.Constraint("Equal", 1, 4),
    Sketcher.Constraint("DistanceY", -1, 1, 0, 2, 1600.0),
    Sketcher.Constraint("DistanceY", -1, 1, 5, 2, 2400.0),
    Sketcher.Constraint("DistanceX", 0, 2, 2, 2, 970.0),
    Sketcher.Constraint("DistanceX", 0, 2, -1, 1, 322.819199),
    Sketcher.Constraint("DistanceX", 1, 1, 1, 2, 141.450577),
])
pad4 = body.newObject("PartDesign::Pad", "Pad003")
pad4.Profile = sketch4
pad4.Length = 45
pad4.Reversed = True

# Sketch on YZ plane
sketch5 = body.newObject("Sketcher::SketchObject", "Sketch004")
sketch5.AttachmentSupport = (doc.getObject("YZ_Plane"), [""])
sketch5.MapMode = "FlatFace"
sketch5.AttachmentOffset = App.Placement(Vector(0, 0, 972.521992), App.Rotation())
sketch5.addGeometry([
    Part.LineSegment(Vector(647, 2393, 0), Vector(1617, 1593, 0)),  # 0
    Part.LineSegment(Vector(1617, 1593, 0), Vector(1476, 1593, 0)),  # 1
    Part.LineSegment(Vector(1476, 1593, 0), Vector(647, 2277, 0)),  # 2
    Part.LineSegment(Vector(647, 2277, 0), Vector(-181, 1593, 0)),  # 3
    Part.LineSegment(Vector(-181, 1593, 0), Vector(-323, 1593, 0)),  # 4
    Part.LineSegment(Vector(-323, 1593, 0), Vector(647, 2393, 0)),  # 5
], False)
sketch5.addConstraint([
    Sketcher.Constraint("Coincident", 0, 2, 1, 1),
    Sketcher.Constraint("Coincident", 1, 2, 2, 1),
    Sketcher.Constraint("Coincident", 2, 2, 3, 1),
    Sketcher.Constraint("Coincident", 3, 2, 4, 1),
    Sketcher.Constraint("Coincident", 4, 2, 5, 1),
    Sketcher.Constraint("Coincident", 5, 2, 0, 1),
    Sketcher.Constraint("Horizontal", 1),
    Sketcher.Constraint("Horizontal", 4),
    Sketcher.Constraint("Parallel", 0, 2),
    Sketcher.Constraint("Parallel", 3, 5),
    Sketcher.Constraint("Horizontal", 1, 2, 3, 2),
    Sketcher.Constraint("Vertical", 2, 2, 5, 2),
    Sketcher.Constraint("Equal", 1, 4),
    Sketcher.Constraint("DistanceX", 2, 2, 0, 2, 970.0),
    Sketcher.Constraint("DistanceY", 1, 2, 5, 2, 800.0),
    Sketcher.Constraint("DistanceX", 3, 2, -1, 1, 181.368599),
    Sketcher.Constraint("DistanceX", 1, 2, 1, 1, 141.450577),
    Sketcher.Constraint("DistanceY", -1, 1, 0, 2, 1593.396578),
])
pad5 = body.newObject("PartDesign::Pad", "Pad004")
pad5.Profile = sketch5
pad5.Length = 45

# Sketch on YZ plane
sketch6 = body.newObject("Sketcher::SketchObject", "Sketch005")
sketch6.AttachmentSupport = (doc.getObject("YZ_Plane"), [""])
sketch6.MapMode = "FlatFace"
sketch6.AttachmentOffset = App.Placement(Vector(0, 0, 117.521992), App.Rotation())
sketch6.addGeometry([
    Part.LineSegment(Vector(647, 2400, 0), Vector(1617, 1600, 0)),  # 0
    Part.LineSegment(Vector(1617, 1600, 0), Vector(1476, 1600, 0)),  # 1
    Part.LineSegment(Vector(1476, 1600, 0), Vector(647, 2283, 0)),  # 2
    Part.LineSegment(Vector(647, 2283, 0), Vector(-181, 1600, 0)),  # 3
    Part.LineSegment(Vector(-181, 1600, 0), Vector(-323, 1600, 0)),  # 4
    Part.LineSegment(Vector(-323, 1600, 0), Vector(647, 2400, 0)),  # 5
], False)
sketch6.addConstraint([
    Sketcher.Constraint("Coincident", 0, 2, 1, 1),
    Sketcher.Constraint("Coincident", 1, 2, 2, 1),
    Sketcher.Constraint("Coincident", 2, 2, 3, 1),
    Sketcher.Constraint("Coincident", 3, 2, 4, 1),
    Sketcher.Constraint("Coincident", 4, 2, 5, 1),
    Sketcher.Constraint("Coincident", 5, 2, 0, 1),
    Sketcher.Constraint("Horizontal", 1),
    Sketcher.Constraint("Horizontal", 4),
    Sketcher.Constraint("Parallel", 0, 2),
    Sketcher.Constraint("Parallel", 3, 5),
    Sketcher.Constraint("Horizontal", 1, 2, 3, 2),
    Sketcher.Constraint("Vertical", 2, 2, 5, 2),
    Sketcher.Constraint("Equal", 1, 4),
    Sketcher.Constraint("DistanceX", 2, 2, 0, 2, 970.0),
    Sketcher.Constraint("DistanceY", 1, 2, 5, 2, 800.0),
    Sketcher.Constraint("DistanceX", 3, 2, -1, 1, 181.368599),
    Sketcher.Constraint("DistanceX", 1, 2, 1, 1, 141.450577),
    Sketcher.Constraint("DistanceY", -1, 1, 0, 2, 1599.999905),
])
pad6 = body.newObject("PartDesign::Pad", "Pad005")
pad6.Profile = sketch6
pad6.Length = 45

# Sketch on YZ plane
sketch7 = body.newObject("Sketcher::SketchObject", "Sketch006")
sketch7.AttachmentSupport = (doc.getObject("YZ_Plane"), [""])
sketch7.MapMode = "FlatFace"
sketch7.AttachmentOffset = App.Placement(Vector(0, 0, -727.478008), App.Rotation())
sketch7.addGeometry([
    Part.LineSegment(Vector(647, 2400, 0), Vector(1617, 1600, 0)),  # 0
    Part.LineSegment(Vector(1617, 1600, 0), Vector(1476, 1600, 0)),  # 1
    Part.LineSegment(Vector(1476, 1600, 0), Vector(647, 2283, 0)),  # 2
    Part.LineSegment(Vector(647, 2283, 0), Vector(-181, 1600, 0)),  # 3
    Part.LineSegment(Vector(-181, 1600, 0), Vector(-323, 1600, 0)),  # 4
    Part.LineSegment(Vector(-323, 1600, 0), Vector(647, 2400, 0)),  # 5
], False)
sketch7.addConstraint([
    Sketcher.Constraint("Coincident", 0, 2, 1, 1),
    Sketcher.Constraint("Coincident", 1, 2, 2, 1),
    Sketcher.Constraint("Coincident", 2, 2, 3, 1),
    Sketcher.Constraint("Coincident", 3, 2, 4, 1),
    Sketcher.Constraint("Coincident", 4, 2, 5, 1),
    Sketcher.Constraint("Coincident", 5, 2, 0, 1),
    Sketcher.Constraint("Horizontal", 1),
    Sketcher.Constraint("Horizontal", 4),
    Sketcher.Constraint("Parallel", 0, 2),
    Sketcher.Constraint("Parallel", 3, 5),
    Sketcher.Constraint("Horizontal", 1, 2, 3, 2),
    Sketcher.Constraint("Vertical", 2, 2, 5, 2),
    Sketcher.Constraint("Equal", 1, 4),
    Sketcher.Constraint("DistanceY", -1, 1, 0, 2, 1600.0),
    Sketcher.Constraint("DistanceY", -1, 1, 5, 2, 2400.0),
    Sketcher.Constraint("DistanceX", 2, 2, 0, 2, 970.0),
    Sketcher.Constraint("DistanceX", 3, 2, -1, 1, 181.368599),
    Sketcher.Constraint("DistanceX", 1, 2, 1, 1, 141.450577),
])
pad7 = body.newObject("PartDesign::Pad", "Pad006")
pad7.Profile = sketch7
pad7.Length = 45
body2 = doc.addObject("PartDesign::Body", "Body001")

# Sketch on XY plane
sketch8 = body2.newObject("Sketcher::SketchObject", "Sketch007")
sketch8.AttachmentSupport = (doc.getObject("XY_Plane001"), [""])
sketch8.MapMode = "FlatFace"
sketch8.AttachmentOffset = App.Placement(Vector(0, 0, 90), App.Rotation())
sketch8.addGeometry([
    Part.LineSegment(Vector(2276, 672, 0), Vector(2276, -588, 0)),
    Part.LineSegment(Vector(2276, -588, 0), Vector(4776, -588, 0)),
    Part.LineSegment(Vector(4776, -588, 0), Vector(4776, 672, 0)),
    Part.LineSegment(Vector(4776, 672, 0), Vector(2276, 672, 0)),
], False)
sketch8.addConstraint([
    Sketcher.Constraint("Coincident", 0, 2, 1, 1),
    Sketcher.Constraint("Coincident", 1, 2, 2, 1),
    Sketcher.Constraint("Coincident", 2, 2, 3, 1),
    Sketcher.Constraint("Coincident", 3, 2, 0, 1),
    Sketcher.Constraint("Vertical", 0),
    Sketcher.Constraint("Horizontal", 1),
    Sketcher.Constraint("Vertical", 2),
    Sketcher.Constraint("Horizontal", 3),
    Sketcher.Constraint("DistanceX", 1, 1, 1, 2, 2500.0),
    Sketcher.Constraint("DistanceY", 0, 2, 0, 1, 1260.0),
    Sketcher.Constraint("DistanceY", 0, 2, -1, 1, 587.651781),
    Sketcher.Constraint("DistanceX", -1, 1, 0, 2, 2276.092768),
])
pad8 = body2.newObject("PartDesign::Pad", "Pad007")
pad8.Profile = sketch8
pad8.Length = 10

doc.recompute()
